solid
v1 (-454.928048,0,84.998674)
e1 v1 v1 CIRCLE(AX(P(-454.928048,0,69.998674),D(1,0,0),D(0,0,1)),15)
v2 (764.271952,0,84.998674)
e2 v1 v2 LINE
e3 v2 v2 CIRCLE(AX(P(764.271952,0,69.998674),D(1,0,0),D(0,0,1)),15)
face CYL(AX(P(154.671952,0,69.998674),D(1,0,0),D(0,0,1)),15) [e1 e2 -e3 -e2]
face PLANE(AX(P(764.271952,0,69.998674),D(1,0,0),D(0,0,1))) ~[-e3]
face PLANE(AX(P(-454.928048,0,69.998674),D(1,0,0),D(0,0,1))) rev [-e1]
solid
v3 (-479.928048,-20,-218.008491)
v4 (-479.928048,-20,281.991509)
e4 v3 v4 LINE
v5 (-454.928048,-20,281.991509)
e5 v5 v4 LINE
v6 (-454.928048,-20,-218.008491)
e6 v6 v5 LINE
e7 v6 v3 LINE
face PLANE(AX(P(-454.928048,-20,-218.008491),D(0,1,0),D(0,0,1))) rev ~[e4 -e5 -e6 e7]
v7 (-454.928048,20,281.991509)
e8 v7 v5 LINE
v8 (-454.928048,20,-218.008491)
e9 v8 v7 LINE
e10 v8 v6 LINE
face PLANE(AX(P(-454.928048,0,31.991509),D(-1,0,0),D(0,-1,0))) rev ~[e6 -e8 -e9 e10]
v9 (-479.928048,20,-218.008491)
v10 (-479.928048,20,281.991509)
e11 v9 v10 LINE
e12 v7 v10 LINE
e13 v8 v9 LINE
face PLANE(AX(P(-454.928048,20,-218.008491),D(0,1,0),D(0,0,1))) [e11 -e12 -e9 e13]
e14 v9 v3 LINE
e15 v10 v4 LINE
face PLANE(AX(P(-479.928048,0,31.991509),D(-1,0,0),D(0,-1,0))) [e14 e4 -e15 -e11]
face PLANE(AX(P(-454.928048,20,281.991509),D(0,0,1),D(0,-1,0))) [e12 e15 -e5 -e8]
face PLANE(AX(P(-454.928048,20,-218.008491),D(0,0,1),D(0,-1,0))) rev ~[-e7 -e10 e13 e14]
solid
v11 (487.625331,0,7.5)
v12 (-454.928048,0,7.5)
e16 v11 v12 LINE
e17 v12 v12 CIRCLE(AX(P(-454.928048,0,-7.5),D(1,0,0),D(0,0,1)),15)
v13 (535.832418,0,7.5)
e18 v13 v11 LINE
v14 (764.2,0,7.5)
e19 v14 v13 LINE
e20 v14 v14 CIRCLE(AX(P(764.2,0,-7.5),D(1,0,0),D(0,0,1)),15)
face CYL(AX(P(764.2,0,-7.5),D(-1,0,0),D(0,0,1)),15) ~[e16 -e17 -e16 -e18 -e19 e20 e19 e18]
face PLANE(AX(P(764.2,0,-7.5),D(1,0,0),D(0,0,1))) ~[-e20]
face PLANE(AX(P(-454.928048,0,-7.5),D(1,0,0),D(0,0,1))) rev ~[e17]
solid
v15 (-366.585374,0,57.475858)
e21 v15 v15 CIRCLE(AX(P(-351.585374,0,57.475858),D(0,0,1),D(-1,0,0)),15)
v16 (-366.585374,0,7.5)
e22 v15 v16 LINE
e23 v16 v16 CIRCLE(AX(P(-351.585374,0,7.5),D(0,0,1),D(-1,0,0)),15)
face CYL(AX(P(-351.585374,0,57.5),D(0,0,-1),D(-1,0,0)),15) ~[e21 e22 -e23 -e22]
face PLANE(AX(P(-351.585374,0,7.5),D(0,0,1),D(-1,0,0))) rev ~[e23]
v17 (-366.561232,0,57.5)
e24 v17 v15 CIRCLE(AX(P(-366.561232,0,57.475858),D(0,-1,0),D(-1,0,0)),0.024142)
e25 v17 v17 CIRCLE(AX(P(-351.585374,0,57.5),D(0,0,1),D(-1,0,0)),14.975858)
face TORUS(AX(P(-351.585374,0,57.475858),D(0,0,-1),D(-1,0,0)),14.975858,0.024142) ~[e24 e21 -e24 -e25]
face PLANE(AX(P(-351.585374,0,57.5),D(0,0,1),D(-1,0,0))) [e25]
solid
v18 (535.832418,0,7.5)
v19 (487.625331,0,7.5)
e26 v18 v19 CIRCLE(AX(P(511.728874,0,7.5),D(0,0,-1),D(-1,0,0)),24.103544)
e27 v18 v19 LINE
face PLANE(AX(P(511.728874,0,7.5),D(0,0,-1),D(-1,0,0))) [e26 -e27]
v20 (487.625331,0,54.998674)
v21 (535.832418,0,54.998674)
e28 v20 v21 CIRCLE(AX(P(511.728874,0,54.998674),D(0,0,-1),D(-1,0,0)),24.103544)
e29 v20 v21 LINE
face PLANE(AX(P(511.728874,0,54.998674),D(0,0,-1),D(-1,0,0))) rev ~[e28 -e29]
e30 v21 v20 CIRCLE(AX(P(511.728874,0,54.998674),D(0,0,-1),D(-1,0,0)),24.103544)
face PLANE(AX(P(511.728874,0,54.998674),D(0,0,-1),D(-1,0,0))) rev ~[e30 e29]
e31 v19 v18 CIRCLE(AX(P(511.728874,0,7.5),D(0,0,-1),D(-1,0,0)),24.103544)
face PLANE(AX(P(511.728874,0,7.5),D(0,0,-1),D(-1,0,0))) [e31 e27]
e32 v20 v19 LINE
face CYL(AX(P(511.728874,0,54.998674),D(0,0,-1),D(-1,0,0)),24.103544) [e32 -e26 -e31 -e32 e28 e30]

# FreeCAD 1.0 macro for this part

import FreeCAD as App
import Part
import Sketcher
from FreeCAD import Vector
Q = App.Units.Quantity


def edges_at(feature, points):
    """Names of the edges that pass closest to the given points."""
    edges = feature.Shape.Edges
    near = lambda p: min(range(len(edges)), key=lambda i: edges[i].distToShape(Part.Vertex(*p))[0])
    return sorted({f"Edge{near(p) + 1}" for p in points})

doc = App.newDocument("Part")
params = doc.addObject("Spreadsheet::Sheet", "Params")
for row, (alias, value) in enumerate([
    ("sketch1_height", "15 mm"),
    ("sketch1_width", "1219.2 mm"),
    ("revolution_angle", "360 deg"),
    ("sketch2_height", "15 mm"),
    ("revolution2_angle", "360 deg"),
    ("sketch3_width", "15 mm"),
    ("sketch3_height", "50 mm"),
    ("revolution3_angle", "360 deg"),
    ("fillet_radius", "0.024142 mm"),
    ("revolution4_angle", "360 deg"),
    ("sketch5_width", "40 mm"),
    ("sketch5_height", "500 mm"),
    ("pad1_length", "25 mm"),
], start=1):
    params.set(f"A{row}", alias)
    params.set(f"B{row}", "=" + value)
    params.setAlias(f"B{row}", alias)

body = doc.addObject("PartDesign::Body", "Body")

sketch1 = doc.addObject("Sketcher::SketchObject", "Sketch")
body.addObject(sketch1)
sketch1.AttachmentSupport = (doc.XZ_Plane, [""])
sketch1.MapMode = "FlatFace"
sketch1.addGeometry(Part.LineSegment(Vector(-455, 85, 0), Vector(-455, 70, 0)), False)
sketch1.addGeometry(Part.LineSegment(Vector(-455, 70, 0), Vector(764, 70, 0)), False)
sketch1.addGeometry(Part.LineSegment(Vector(764, 70, 0), Vector(764, 85, 0)), False)
sketch1.addGeometry(Part.LineSegment(Vector(764, 85, 0), Vector(-455, 85, 0)), False)
sketch1.addGeometry(Part.LineSegment(Vector(-455, 70, 0), Vector(764, 70, 0)), True)
sketch1.addConstraint(Sketcher.Constraint("Coincident", 0, 2, 1, 1))
sketch1.addConstraint(Sketcher.Constraint("Coincident", 1, 2, 2, 1))
sketch1.addConstraint(Sketcher.Constraint("Coincident", 2, 2, 3, 1))
sketch1.addConstraint(Sketcher.Constraint("Coincident", 3, 2, 0, 1))
sketch1.addConstraint(Sketcher.Constraint("Vertical", 0))
sketch1.addConstraint(Sketcher.Constraint("Horizontal", 1))
sketch1.addConstraint(Sketcher.Constraint("Vertical", 2))
sketch1.addConstraint(Sketcher.Constraint("Horizontal", 3))
sketch1.addConstraint(Sketcher.Constraint("Horizontal", 4))
sketch1.addConstraint(Sketcher.Constraint("Coincident", 4, 1, 0, 2))
sketch1.addConstraint(Sketcher.Constraint("Vertical", 2, 2, 4, 2))
sketch1.addConstraint(Sketcher.Constraint("DistanceY", 0, 2, 0, 1, Q("15 mm")))
sketch1.addConstraint(Sketcher.Constraint("DistanceX", 1, 1, 1, 2, Q("1219.2 mm")))
sketch1.addConstraint(Sketcher.Constraint("DistanceX", 0, 2, -1, 1, Q("454.928048 mm")))
sketch1.addConstraint(Sketcher.Constraint("DistanceY", -1, 1, 0, 2, Q("69.998674 mm")))
sketch1.setExpression("Constraints[11]", "Params.sketch1_height")
sketch1.setExpression("Constraints[12]", "Params.sketch1_width")
revolution = doc.addObject("PartDesign::Revolution", "Revolution")
body.addObject(revolution)
revolution.Profile = sketch1
revolution.ReferenceAxis = (sketch1, ["Axis0"])
revolution.setExpression("Angle", "Params.revolution_angle")
body2 = doc.addObject("PartDesign::Body", "Body001")

sketch2 = doc.addObject("Sketcher::SketchObject", "Sketch001")
body2.addObject(sketch2)
sketch2.AttachmentSupport = (doc.getObject("XZ_Plane001"), [""])
sketch2.MapMode = "FlatFace"
sketch2.addGeometry(Part.LineSegment(Vector(-455, -8, 0), Vector(764, -8, 0)), False)
sketch2.addGeometry(Part.LineSegment(Vector(764, -8, 0), Vector(764, 8, 0)), False)
sketch2.addGeometry(Part.LineSegment(Vector(764, 8, 0), Vector(-455, 8, 0)), False)
sketch2.addGeometry(Part.LineSegment(Vector(-455, 8, 0), Vector(-455, -8, 0)), False)
sketch2.addGeometry(Part.LineSegment(Vector(-455, -8, 0), Vector(764, -8, 0)), True)
sketch2.addConstraint(Sketcher.Constraint("Coincident", 0, 2, 1, 1))
sketch2.addConstraint(Sketcher.Constraint("Coincident", 1, 2, 2, 1))
sketch2.addConstraint(Sketcher.Constraint("Coincident", 2, 2, 3, 1))
sketch2.addConstraint(Sketcher.Constraint("Coincident", 3, 2, 0, 1))
sketch2.addConstraint(Sketcher.Constraint("Horizontal", 0))
sketch2.addConstraint(Sketcher.Constraint("Vertical", 1))
sketch2.addConstraint(Sketcher.Constraint("Horizontal", 2))
sketch2.addConstraint(Sketcher.Constraint("Vertical", 3))
sketch2.addConstraint(Sketcher.Constraint("Horizontal", 4))
sketch2.addConstraint(Sketcher.Constraint("Coincident", 4, 1, 3, 2))
sketch2.addConstraint(Sketcher.Constraint("Symmetric", 1, 2, 4, 2, -1))
sketch2.addConstraint(Sketcher.Constraint("DistanceY", 1, 1, 1, 2, Q("15 mm")))
sketch2.addConstraint(Sketcher.Constraint("DistanceX", -1, 1, 0, 2, Q("764.2 mm")))
sketch2.addConstraint(Sketcher.Constraint("DistanceX", 0, 1, 0, 2, Q("1219.128048 mm")))
sketch2.setExpression("Constraints[11]", "Params.sketch2_height")
revolution2 = doc.addObject("PartDesign::Revolution", "Revolution001")
body2.addObject(revolution2)
revolution2.Profile = sketch2
revolution2.ReferenceAxis = (sketch2, ["Axis0"])
revolution2.setExpression("Angle", "Params.revolution2_angle")
body3 = doc.addObject("PartDesign::Body", "Body002")

sketch3 = doc.addObject("Sketcher::SketchObject", "Sketch002")
body3.addObject(sketch3)
sketch3.AttachmentSupport = (doc.getObject("XZ_Plane002"), [""])
sketch3.MapMode = "FlatFace"
sketch3.addGeometry(Part.LineSegment(Vector(-367, 8, 0), Vector(-352, 8, 0)), False)
sketch3.addGeometry(Part.LineSegment(Vector(-352, 8, 0), Vector(-352, 58, 0)), False)
sketch3.addGeometry(Part.LineSegment(Vector(-352, 58, 0), Vector(-367, 58, 0)), False)
sketch3.addGeometry(Part.LineSegment(Vector(-367, 58, 0), Vector(-367, 8, 0)), False)
sketch3.addGeometry(Part.LineSegment(Vector(-352, 8, 0), Vector(-352, 58, 0)), True)
sketch3.addConstraint(Sketcher.Constraint("Coincident", 0, 2, 1, 1))
sketch3.addConstraint(Sketcher.Constraint("Coincident", 1, 2, 2, 1))
sketch3.addConstraint(Sketcher.Constraint("Coincident", 2, 2, 3, 1))
sketch3.addConstraint(Sketcher.Constraint("Coincident", 3, 2, 0, 1))
sketch3.addConstraint(Sketcher.Constraint("Horizontal", 0))
sketch3.addConstraint(Sketcher.Constraint("Vertical", 1))
sketch3.addConstraint(Sketcher.Constraint("Horizontal", 2))
sketch3.addConstraint(Sketcher.Constraint("Vertical", 3))
sketch3.addConstraint(Sketcher.Constraint("Vertical", 4))
sketch3.addConstraint(Sketcher.Constraint("Coincident", 4, 1, 0, 2))
sketch3.addConstraint(Sketcher.Constraint("Horizontal", 2, 2, 4, 2))
sketch3.addConstraint(Sketcher.Constraint("DistanceX", 0, 1, 0, 2, Q("15 mm")))
sketch3.addConstraint(Sketcher.Constraint("DistanceY", 1, 1, 1, 2, Q("50 mm")))
sketch3.addConstraint(Sketcher.Constraint("DistanceY", -1, 1, 0, 2, Q("7.5 mm")))
sketch3.addConstraint(Sketcher.Constraint("DistanceX", 0, 2, -1, 1, Q("351.585374 mm")))
sketch3.setExpression("Constraints[11]", "Params.sketch3_width")
sketch3.setExpression("Constraints[12]", "Params.sketch3_height")
revolution3 = doc.addObject("PartDesign::Revolution", "Revolution002")
body3.addObject(revolution3)
revolution3.Profile = sketch3
revolution3.ReferenceAxis = (sketch3, ["Axis0"])
revolution3.setExpression("Angle", "Params.revolution3_angle")
doc.recompute()

fillet = doc.addObject("PartDesign::Fillet", "Fillet")
body3.addObject(fillet)
fillet.Base = (revolution3, edges_at(revolution3, [(-336.585, 0, 57.5)]))
fillet.setExpression("Radius", "Params.fillet_radius")
body.AllowCompound = True
doc.recompute()

boolean = doc.addObject("PartDesign::Boolean", "Boolean")
body.addObject(boolean)
boolean.Type = "Fuse"
boolean.addObjects([body2])

sketch4 = doc.addObject("Sketcher::SketchObject", "Sketch003")
body.addObject(sketch4)
sketch4.AttachmentSupport = (doc.XZ_Plane, [""])
sketch4.MapMode = "FlatFace"
sketch4.addGeometry(Part.LineSegment(Vector(488, 55, 0), Vector(488, 8, 0)), False)
sketch4.addGeometry(Part.LineSegment(Vector(488, 8, 0), Vector(512, 8, 0)), False)
sketch4.addGeometry(Part.LineSegment(Vector(512, 8, 0), Vector(512, 55, 0)), False)
sketch4.addGeometry(Part.LineSegment(Vector(512, 55, 0), Vector(488, 55, 0)), False)
sketch4.addGeometry(Part.LineSegment(Vector(512, 55, 0), Vector(512, 8, 0)), True)
sketch4.addConstraint(Sketcher.Constraint("Coincident", 0, 2, 1, 1))
sketch4.addConstraint(Sketcher.Constraint("Coincident", 1, 2, 2, 1))
sketch4.addConstraint(Sketcher.Constraint("Coincident", 2, 2, 3, 1))
sketch4.addConstraint(Sketcher.Constraint("Coincident", 3, 2, 0, 1))
sketch4.addConstraint(Sketcher.Constraint("Vertical", 0))
sketch4.addConstraint(Sketcher.Constraint("Horizontal", 1))
sketch4.addConstraint(Sketcher.Constraint("Vertical", 2))
sketch4.addConstraint(Sketcher.Constraint("Horizontal", 3))
sketch4.addConstraint(Sketcher.Constraint("Vertical", 4))
sketch4.addConstraint(Sketcher.Constraint("Coincident", 4, 1, 2, 2))
sketch4.addConstraint(Sketcher.Constraint("Horizontal", 0, 2, 4, 2))
sketch4.addConstraint(Sketcher.Constraint("DistanceY", -1, 1, 0, 2, Q("7.5 mm")))
sketch4.addConstraint(Sketcher.Constraint("DistanceX", 1, 1, 1, 2, Q("24.103544 mm")))
sketch4.addConstraint(Sketcher.Constraint("DistanceY", 0, 2, 0, 1, Q("47.498674 mm")))
sketch4.addConstraint(Sketcher.Constraint("DistanceX", -1, 1, 0, 2, Q("487.625331 mm")))
revolution4 = doc.addObject("PartDesign::Revolution", "Revolution003")
body.addObject(revolution4)
revolution4.Profile = sketch4
revolution4.ReferenceAxis = (sketch4, ["Axis0"])
revolution4.setExpression("Angle", "Params.revolution4_angle")
body4 = doc.addObject("PartDesign::Body", "Body003")

sketch5 = doc.addObject("Sketcher::SketchObject", "Sketch004")
body4.addObject(sketch5)
sketch5.AttachmentSupport = (doc.getObject("YZ_Plane003"), [""])
sketch5.MapMode = "FlatFace"
sketch5.AttachmentOffset = App.Placement(Vector(0, 0, -454.928048), App.Rotation())
sketch5.addGeometry(Part.LineSegment(Vector(20, 282, 0), Vector(20, -218, 0)), False)
sketch5.addGeometry(Part.LineSegment(Vector(20, -218, 0), Vector(-20, -218, 0)), False)
sketch5.addGeometry(Part.LineSegment(Vector(-20, -218, 0), Vector(-20, 282, 0)), False)
sketch5.addGeometry(Part.LineSegment(Vector(-20, 282, 0), Vector(20, 282, 0)), False)
sketch5.addConstraint(Sketcher.Constraint("Coincident", 0, 2, 1, 1))
sketch5.addConstraint(Sketcher.Constraint("Coincident", 1, 2, 2, 1))
sketch5.addConstraint(Sketcher.Constraint("Coincident", 2, 2, 3, 1))
sketch5.addConstraint(Sketcher.Constraint("Coincident", 3, 2, 0, 1))
sketch5.addConstraint(Sketcher.Constraint("Vertical", 0))
sketch5.addConstraint(Sketcher.Constraint("Horizontal", 1))
sketch5.addConstraint(Sketcher.Constraint("Vertical", 2))
sketch5.addConstraint(Sketcher.Constraint("Horizontal", 3))
sketch5.addConstraint(Sketcher.Constraint("DistanceX", 1, 2, 1, 1, Q("40 mm")))
sketch5.addConstraint(Sketcher.Constraint("DistanceY", 0, 2, 0, 1, Q("500 mm")))
sketch5.addConstraint(Sketcher.Constraint("DistanceX", -1, 1, 0, 2, Q("20 mm")))
sketch5.addConstraint(Sketcher.Constraint("DistanceY", 0, 2, -1, 1, Q("218.008491 mm")))
sketch5.setExpression("Constraints[8]", "Params.sketch5_width")
sketch5.setExpression("Constraints[9]", "Params.sketch5_height")
pad1 = doc.addObject("PartDesign::Pad", "Pad")
body4.addObject(pad1)
pad1.Profile = sketch5
pad1.setExpression("Length", "Params.pad1_length")
pad1.Reversed = True

doc.recompute()
